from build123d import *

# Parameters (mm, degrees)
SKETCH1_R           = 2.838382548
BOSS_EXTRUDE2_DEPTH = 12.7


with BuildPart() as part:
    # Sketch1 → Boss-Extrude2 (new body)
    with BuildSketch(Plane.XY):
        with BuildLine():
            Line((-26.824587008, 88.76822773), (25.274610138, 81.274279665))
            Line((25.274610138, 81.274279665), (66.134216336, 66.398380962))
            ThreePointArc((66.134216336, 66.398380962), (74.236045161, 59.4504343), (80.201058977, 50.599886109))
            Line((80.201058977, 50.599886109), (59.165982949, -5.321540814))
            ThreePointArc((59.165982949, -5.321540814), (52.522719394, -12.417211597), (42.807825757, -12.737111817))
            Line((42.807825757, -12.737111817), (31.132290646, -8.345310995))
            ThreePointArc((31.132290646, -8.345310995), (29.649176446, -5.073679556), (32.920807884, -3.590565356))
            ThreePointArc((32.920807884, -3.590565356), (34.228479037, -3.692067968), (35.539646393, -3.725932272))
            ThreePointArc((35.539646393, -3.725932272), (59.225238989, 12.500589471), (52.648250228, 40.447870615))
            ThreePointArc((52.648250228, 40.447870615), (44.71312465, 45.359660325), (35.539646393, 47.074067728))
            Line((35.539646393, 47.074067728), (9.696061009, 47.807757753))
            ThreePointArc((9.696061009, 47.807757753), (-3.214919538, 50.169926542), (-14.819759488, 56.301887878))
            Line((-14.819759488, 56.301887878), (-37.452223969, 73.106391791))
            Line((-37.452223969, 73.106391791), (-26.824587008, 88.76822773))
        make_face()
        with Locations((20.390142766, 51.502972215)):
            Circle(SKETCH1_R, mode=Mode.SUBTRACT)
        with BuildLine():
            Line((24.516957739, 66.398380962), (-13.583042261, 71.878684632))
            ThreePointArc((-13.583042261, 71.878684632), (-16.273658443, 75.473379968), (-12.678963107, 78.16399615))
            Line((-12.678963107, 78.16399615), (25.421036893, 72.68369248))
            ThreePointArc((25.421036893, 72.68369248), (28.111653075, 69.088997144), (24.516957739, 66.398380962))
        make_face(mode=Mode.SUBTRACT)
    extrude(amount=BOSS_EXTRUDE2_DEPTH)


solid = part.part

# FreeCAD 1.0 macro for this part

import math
import FreeCAD as App
import Part
import Sketcher

V = App.Vector
Q = App.Units.Quantity

doc = App.newDocument("Part")
params = doc.addObject("Spreadsheet::Sheet", "Params")
for row, (alias, value) in enumerate([
    ("sketch1_radius", "1 in"),
    ("sketch1_radius2", "1.7 in"),
    ("sketch1_radius3", "0.1 in"),
    ("sketch1_radius4", "0.5 in"),
    ("sketch1_radius5", "0.125 in"),
    ("pad1_length", "0.5 in"),
], start=1):
    params.set(f"A{row}", alias)
    params.set(f"B{row}", "=" + value)
    params.setAlias(f"B{row}", alias)

body = doc.addObject("PartDesign::Body", "Body")

sketch1 = doc.addObject("Sketcher::SketchObject", "Sketch")
body.addObject(sketch1)
sketch1.AttachmentSupport = (doc.XY_Plane, [""])
sketch1.MapMode = "FlatFace"
sketch1.addGeometry([
    Part.LineSegment(V(25.27461, 81.27428, 0), V(-26.824587, 88.768228, 0)),
    Part.LineSegment(V(-26.824587, 88.768228, 0), V(-37.452224, 73.106392, 0)),
    Part.LineSegment(V(-37.452224, 73.106392, 0), V(-14.819759, 56.301888, 0)),
    Part.ArcOfCircle(Part.Circle(V(10.921432, 90.970367, 0), V(0, 0, 1), 43.18), math.radians(-126.593722), math.radians(-91.62617)),
    Part.LineSegment(V(9.696061, 47.807758, 0), V(35.539646, 47.074068, 0)),
    Part.ArcOfCircle(Part.Circle(V(35.539646, 21.674068, 0), V(0, 0, 1), 25.4), math.radians(47.657026), math.radians(90)),
    Part.ArcOfCircle(Part.Circle(V(35.539646, 21.674068, 0), V(0, 0, 1), 25.4), math.radians(-90), math.radians(47.657026)),
    Part.ArcOfCircle(Part.Circle(V(35.539646, 21.674068, 0), V(0, 0, 1), 25.4), math.radians(-95.917934), math.radians(-90)),
    Part.ArcOfCircle(Part.Circle(V(32.026549, -5.967938, 0), V(0, 0, 1), 2.54), math.radians(69.386002), math.radians(249.386002)),
    Part.LineSegment(V(31.132291, -8.345311, 0), V(42.807826, -12.737112, 0)),
    Part.ArcOfCircle(Part.Circle(V(47.279119, -0.850248, 0), V(0, 0, 1), 12.7), math.radians(-110.613998), math.radians(-20.613998)),
    Part.LineSegment(V(59.165983, -5.321541, 0), V(80.201059, 50.599886, 0)),
    Part.ArcOfCircle(Part.Circle(V(44.500385, 32.974061, 0), V(0, 0, 1), 39.814668), math.radians(26.276073), math.radians(57.087109)),
    Part.LineSegment(V(66.134216, 66.398381, 0), V(25.27461, 81.27428, 0)),
    Part.Circle(V(20.390143, 51.502972, 0), V(0, 0, 1), 2.838383),
    Part.LineSegment(V(24.516958, 66.398381, 0), V(-13.583042, 71.878685, 0)),
    Part.ArcOfCircle(Part.Circle(V(-13.131003, 75.02134, 0), V(0, 0, 1), 3.175), math.radians(81.814718), math.radians(261.814718)),
    Part.LineSegment(V(-12.678963, 78.163996, 0), V(25.421037, 72.683692, 0)),
    Part.ArcOfCircle(Part.Circle(V(24.968997, 69.541037, 0), V(0, 0, 1), 3.175), math.radians(-98.185282), math.radians(81.814718)),
], False)
sketch1.addConstraint([
    Sketcher.Constraint("Coincident", 0, 2, 1, 1),
    Sketcher.Constraint("Coincident", 1, 2, 2, 1),
    Sketcher.Constraint("Tangent", 2, 2, 3, 1),
    Sketcher.Constraint("Tangent", 3, 2, 4, 1),
    Sketcher.Constraint("Coincident", 4, 2, 5, 2),
    Sketcher.Constraint("Tangent", 5, 1, 6, 2),
    Sketcher.Constraint("Tangent", 6, 1, 7, 2),
    Sketcher.Constraint("Coincident", 7, 1, 8, 1),
    Sketcher.Constraint("Tangent", 8, 2, 9, 1),
    Sketcher.Constraint("Tangent", 9, 2, 10, 1),
    Sketcher.Constraint("Tangent", 10, 2, 11, 1),
    Sketcher.Constraint("Coincident", 11, 2, 12, 1),
    Sketcher.Constraint("Coincident", 12, 2, 13, 1),
    Sketcher.Constraint("Coincident", 13, 2, 0, 1),
    Sketcher.Constraint("Tangent", 15, 2, 16, 2),
    Sketcher.Constraint("Tangent", 16, 1, 17, 1),
    Sketcher.Constraint("Tangent", 17, 2, 18, 2),
    Sketcher.Constraint("Tangent", 18, 1, 15, 1),
    Sketcher.Constraint("Coincident", 7, 3, 5, 3),
    Sketcher.Constraint("Equal", 16, 18),
    Sketcher.Constraint("Perpendicular", 9, 11),
    Sketcher.Constraint("Parallel", 0, 15),
    Sketcher.Constraint("Horizontal", 12, 2, 18, 1),
    Sketcher.Constraint("Vertical", 7, 3, 4, 2),
    Sketcher.Constraint("Vertical", 4, 2, 6, 1),
    Sketcher.Constraint("Radius", 5, Q("1 in")),
    Sketcher.Constraint("Radius", 3, Q("1.7 in")),
    Sketcher.Constraint("Radius", 8, Q("0.1 in")),
    Sketcher.Constraint("Radius", 10, Q("0.5 in")),
    Sketcher.Constraint("Radius", 16, Q("0.125 in")),
    Sketcher.Constraint("DistanceX", 16, 3, 18, 3, Q("1.5 in")),
    Sketcher.Constraint("Radius", 12, Q("39.814668 mm")),
    Sketcher.Constraint("Diameter", 14, Q("5.676765 mm")),
    Sketcher.Constraint("Distance", 2, Q("28.189001 mm")),
    Sketcher.Constraint("DistanceY", 5, 3, 3, 3, Q("69.2963 mm")),
    Sketcher.Constraint("DistanceY", 8, 3, 12, 3, Q("38.941999 mm")),
    Sketcher.Constraint("DistanceY", 9, 2, 8, 2, Q("4.391801 mm")),
    Sketcher.Constraint("DistanceY", 18, 1, 13, 2, Q("14.875899 mm")),
    Sketcher.Constraint("DistanceX", -1, 1, 3, 3, Q("10.921432 mm")),
    Sketcher.Constraint("DistanceY", -1, 1, 7, 3, Q("21.674068 mm")),
    Sketcher.Constraint("DistanceX", -1, 1, 8, 3, Q("32.026549 mm")),
    Sketcher.Constraint("DistanceY", 8, 3, -1, 1, Q("5.967938 mm")),
    Sketcher.Constraint("DistanceX", -1, 1, 10, 3, Q("47.279119 mm")),
    Sketcher.Constraint("DistanceY", -1, 1, 16, 3, Q("75.02134 mm")),
    Sketcher.Constraint("DistanceY", -1, 1, 1, 2, Q("73.106392 mm")),
    Sketcher.Constraint("DistanceX", -1, 1, 5, 1, Q("52.64825 mm")),
    Sketcher.Constraint("DistanceY", -1, 1, 5, 1, Q("40.447871 mm")),
    Sketcher.Constraint("DistanceX", -1, 1, 11, 2, Q("80.201059 mm")),
    Sketcher.Constraint("DistanceY", -1, 1, 12, 2, Q("66.398381 mm")),
    Sketcher.Constraint("DistanceX", -1, 1, 13, 2, Q("25.27461 mm")),
    Sketcher.Constraint("DistanceY", 12, 3, 14, 3, Q("18.528911 mm")),
    Sketcher.Constraint("DistanceX", 3, 3, 14, 3, Q("9.468711 mm")),
    Sketcher.Constraint("DistanceX", 16, 3, 7, 3, Q("48.670649 mm")),
    Sketcher.Constraint("DistanceX", 0, 2, 3, 3, Q("37.746019 mm")),
])
sketch1.setExpression("Constraints[25]", "Params.sketch1_radius")
sketch1.setExpression("Constraints[26]", "Params.sketch1_radius2")
sketch1.setExpression("Constraints[27]", "Params.sketch1_radius3")
sketch1.setExpression("Constraints[28]", "Params.sketch1_radius4")
sketch1.setExpression("Constraints[29]", "Params.sketch1_radius5")
pad1 = doc.addObject("PartDesign::Pad", "Pad")
body.addObject(pad1)
pad1.Profile = sketch1
pad1.setExpression("Length", "Params.pad1_length")

doc.recompute()
